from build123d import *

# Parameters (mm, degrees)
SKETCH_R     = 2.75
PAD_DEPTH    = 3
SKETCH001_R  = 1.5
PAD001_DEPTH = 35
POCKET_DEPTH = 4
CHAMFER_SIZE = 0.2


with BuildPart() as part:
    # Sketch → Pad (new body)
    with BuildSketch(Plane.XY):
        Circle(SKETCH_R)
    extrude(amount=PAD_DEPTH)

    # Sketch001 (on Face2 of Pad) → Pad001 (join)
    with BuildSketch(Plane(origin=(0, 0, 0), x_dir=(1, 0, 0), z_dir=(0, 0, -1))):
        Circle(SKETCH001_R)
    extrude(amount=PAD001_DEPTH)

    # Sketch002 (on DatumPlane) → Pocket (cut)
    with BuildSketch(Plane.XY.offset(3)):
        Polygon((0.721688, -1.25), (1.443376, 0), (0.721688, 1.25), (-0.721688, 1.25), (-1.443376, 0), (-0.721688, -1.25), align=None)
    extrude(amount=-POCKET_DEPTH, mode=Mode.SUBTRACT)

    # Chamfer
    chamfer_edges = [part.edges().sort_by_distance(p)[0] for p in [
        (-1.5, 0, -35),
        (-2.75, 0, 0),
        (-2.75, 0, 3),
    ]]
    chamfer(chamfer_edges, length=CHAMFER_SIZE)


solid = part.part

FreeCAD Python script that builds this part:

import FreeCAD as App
import Part
import Sketcher
from FreeCAD import Vector
Q = App.Units.Quantity


def edges_at(feature, points):
    """Names of the edges that pass closest to the given points."""
    edges = feature.Shape.Edges
    near = lambda p: min(range(len(edges)), key=lambda i: edges[i].distToShape(Part.Vertex(*p))[0])
    return sorted({f"Edge{near(p) + 1}" for p in points})


def add_polygon(sketch, points):
    """Adds a closed chain of lines whose ends are joined by coincident constraints."""
    first, n = sketch.GeometryCount, len(points)
    for a, b in zip(points, points[1:] + points[:1]):
        sketch.addGeometry(Part.LineSegment(App.Vector(*a, 0), App.Vector(*b, 0)), False)
    for i in range(n):
        sketch.addConstraint(Sketcher.Constraint("Coincident", first + i, 2, first + (i + 1) % n, 1))

doc = App.newDocument("Part")
body = doc.addObject("PartDesign::Body", "Body")

sketch1 = body.newObject("Sketcher::SketchObject", "Sketch")
sketch1.AttachmentSupport = (doc.getObject("XY_Plane"), [""])
sketch1.MapMode = "FlatFace"
sketch1.addGeometry(Part.Circle(Vector(0, 0, 0), Vector(0, 0, 1), 2.8), False)
sketch1.addConstraint([
    Sketcher.Constraint("Coincident", 0, 3, -1, 1),
    Sketcher.Constraint("Diameter", 0, Q("5.5 mm")),
])
pad1 = body.newObject("PartDesign::Pad", "Pad")
pad1.Profile = sketch1
pad1.Length = 3

sketch2 = body.newObject("Sketcher::SketchObject", "Sketch001")
sketch2.AttachmentSupport = (doc.getObject("XY_Plane"), [""])
sketch2.MapMode = "FlatFace"
sketch2.addGeometry(Part.Circle(Vector(0, 0, 0), Vector(0, 0, 1), 1.5), False)
sketch2.addConstraint([
    Sketcher.Constraint("Coincident", 0, 3, -1, 1),
    Sketcher.Constraint("Diameter", 0, Q("3 mm")),
])
pad2 = body.newObject("PartDesign::Pad", "Pad001")
pad2.Profile = sketch2
pad2.Length = 35
pad2.Reversed = True

sketch3 = body.newObject("Sketcher::SketchObject", "Sketch002")
sketch3.AttachmentSupport = (doc.getObject("XY_Plane"), [""])
sketch3.MapMode = "FlatFace"
sketch3.AttachmentOffset = App.Placement(Vector(0, 0, 3), App.Rotation())
add_polygon(sketch3, [(0.7, -1.2), (1.4, 0), (0.7, 1.2), (-0.7, 1.2), (-1.4, 0), (-0.7, -1.2)])
sketch3.addConstraint([
    Sketcher.Constraint("Horizontal", 2),
    Sketcher.Constraint("Horizontal", 5),
    Sketcher.Constraint("Symmetric", 0, 2, 3, 2, -1, 1),
    Sketcher.Constraint("Symmetric", 1, 2, 4, 2, -1, 1),
    Sketcher.Constraint("PointOnObject", 0, 2, -1),
    Sketcher.Constraint("Parallel", 0, 3),
    Sketcher.Constraint("Vertical", 2, 2, 4, 2),
    Sketcher.Constraint("Angle", 0, Q("59.999994 deg")),
    Sketcher.Constraint("DistanceY", 4, 2, 2, 2, Q("2.5 mm")),
    Sketcher.Constraint("DistanceX", 2, 2, 2, 1, Q("1.443376 mm")),
])
pocket1 = body.newObject("PartDesign::Pocket", "Pocket")
pocket1.Profile = sketch3
pocket1.Length = 4
doc.recompute()

chamfer = body.newObject("PartDesign::Chamfer", "Chamfer")
chamfer.Base = (pocket1, edges_at(pocket1, [(-1.5, 0, -35), (-2.75, 0, 0), (-2.75, 0, 3)]))
chamfer.Size = 0.2

doc.recompute()
